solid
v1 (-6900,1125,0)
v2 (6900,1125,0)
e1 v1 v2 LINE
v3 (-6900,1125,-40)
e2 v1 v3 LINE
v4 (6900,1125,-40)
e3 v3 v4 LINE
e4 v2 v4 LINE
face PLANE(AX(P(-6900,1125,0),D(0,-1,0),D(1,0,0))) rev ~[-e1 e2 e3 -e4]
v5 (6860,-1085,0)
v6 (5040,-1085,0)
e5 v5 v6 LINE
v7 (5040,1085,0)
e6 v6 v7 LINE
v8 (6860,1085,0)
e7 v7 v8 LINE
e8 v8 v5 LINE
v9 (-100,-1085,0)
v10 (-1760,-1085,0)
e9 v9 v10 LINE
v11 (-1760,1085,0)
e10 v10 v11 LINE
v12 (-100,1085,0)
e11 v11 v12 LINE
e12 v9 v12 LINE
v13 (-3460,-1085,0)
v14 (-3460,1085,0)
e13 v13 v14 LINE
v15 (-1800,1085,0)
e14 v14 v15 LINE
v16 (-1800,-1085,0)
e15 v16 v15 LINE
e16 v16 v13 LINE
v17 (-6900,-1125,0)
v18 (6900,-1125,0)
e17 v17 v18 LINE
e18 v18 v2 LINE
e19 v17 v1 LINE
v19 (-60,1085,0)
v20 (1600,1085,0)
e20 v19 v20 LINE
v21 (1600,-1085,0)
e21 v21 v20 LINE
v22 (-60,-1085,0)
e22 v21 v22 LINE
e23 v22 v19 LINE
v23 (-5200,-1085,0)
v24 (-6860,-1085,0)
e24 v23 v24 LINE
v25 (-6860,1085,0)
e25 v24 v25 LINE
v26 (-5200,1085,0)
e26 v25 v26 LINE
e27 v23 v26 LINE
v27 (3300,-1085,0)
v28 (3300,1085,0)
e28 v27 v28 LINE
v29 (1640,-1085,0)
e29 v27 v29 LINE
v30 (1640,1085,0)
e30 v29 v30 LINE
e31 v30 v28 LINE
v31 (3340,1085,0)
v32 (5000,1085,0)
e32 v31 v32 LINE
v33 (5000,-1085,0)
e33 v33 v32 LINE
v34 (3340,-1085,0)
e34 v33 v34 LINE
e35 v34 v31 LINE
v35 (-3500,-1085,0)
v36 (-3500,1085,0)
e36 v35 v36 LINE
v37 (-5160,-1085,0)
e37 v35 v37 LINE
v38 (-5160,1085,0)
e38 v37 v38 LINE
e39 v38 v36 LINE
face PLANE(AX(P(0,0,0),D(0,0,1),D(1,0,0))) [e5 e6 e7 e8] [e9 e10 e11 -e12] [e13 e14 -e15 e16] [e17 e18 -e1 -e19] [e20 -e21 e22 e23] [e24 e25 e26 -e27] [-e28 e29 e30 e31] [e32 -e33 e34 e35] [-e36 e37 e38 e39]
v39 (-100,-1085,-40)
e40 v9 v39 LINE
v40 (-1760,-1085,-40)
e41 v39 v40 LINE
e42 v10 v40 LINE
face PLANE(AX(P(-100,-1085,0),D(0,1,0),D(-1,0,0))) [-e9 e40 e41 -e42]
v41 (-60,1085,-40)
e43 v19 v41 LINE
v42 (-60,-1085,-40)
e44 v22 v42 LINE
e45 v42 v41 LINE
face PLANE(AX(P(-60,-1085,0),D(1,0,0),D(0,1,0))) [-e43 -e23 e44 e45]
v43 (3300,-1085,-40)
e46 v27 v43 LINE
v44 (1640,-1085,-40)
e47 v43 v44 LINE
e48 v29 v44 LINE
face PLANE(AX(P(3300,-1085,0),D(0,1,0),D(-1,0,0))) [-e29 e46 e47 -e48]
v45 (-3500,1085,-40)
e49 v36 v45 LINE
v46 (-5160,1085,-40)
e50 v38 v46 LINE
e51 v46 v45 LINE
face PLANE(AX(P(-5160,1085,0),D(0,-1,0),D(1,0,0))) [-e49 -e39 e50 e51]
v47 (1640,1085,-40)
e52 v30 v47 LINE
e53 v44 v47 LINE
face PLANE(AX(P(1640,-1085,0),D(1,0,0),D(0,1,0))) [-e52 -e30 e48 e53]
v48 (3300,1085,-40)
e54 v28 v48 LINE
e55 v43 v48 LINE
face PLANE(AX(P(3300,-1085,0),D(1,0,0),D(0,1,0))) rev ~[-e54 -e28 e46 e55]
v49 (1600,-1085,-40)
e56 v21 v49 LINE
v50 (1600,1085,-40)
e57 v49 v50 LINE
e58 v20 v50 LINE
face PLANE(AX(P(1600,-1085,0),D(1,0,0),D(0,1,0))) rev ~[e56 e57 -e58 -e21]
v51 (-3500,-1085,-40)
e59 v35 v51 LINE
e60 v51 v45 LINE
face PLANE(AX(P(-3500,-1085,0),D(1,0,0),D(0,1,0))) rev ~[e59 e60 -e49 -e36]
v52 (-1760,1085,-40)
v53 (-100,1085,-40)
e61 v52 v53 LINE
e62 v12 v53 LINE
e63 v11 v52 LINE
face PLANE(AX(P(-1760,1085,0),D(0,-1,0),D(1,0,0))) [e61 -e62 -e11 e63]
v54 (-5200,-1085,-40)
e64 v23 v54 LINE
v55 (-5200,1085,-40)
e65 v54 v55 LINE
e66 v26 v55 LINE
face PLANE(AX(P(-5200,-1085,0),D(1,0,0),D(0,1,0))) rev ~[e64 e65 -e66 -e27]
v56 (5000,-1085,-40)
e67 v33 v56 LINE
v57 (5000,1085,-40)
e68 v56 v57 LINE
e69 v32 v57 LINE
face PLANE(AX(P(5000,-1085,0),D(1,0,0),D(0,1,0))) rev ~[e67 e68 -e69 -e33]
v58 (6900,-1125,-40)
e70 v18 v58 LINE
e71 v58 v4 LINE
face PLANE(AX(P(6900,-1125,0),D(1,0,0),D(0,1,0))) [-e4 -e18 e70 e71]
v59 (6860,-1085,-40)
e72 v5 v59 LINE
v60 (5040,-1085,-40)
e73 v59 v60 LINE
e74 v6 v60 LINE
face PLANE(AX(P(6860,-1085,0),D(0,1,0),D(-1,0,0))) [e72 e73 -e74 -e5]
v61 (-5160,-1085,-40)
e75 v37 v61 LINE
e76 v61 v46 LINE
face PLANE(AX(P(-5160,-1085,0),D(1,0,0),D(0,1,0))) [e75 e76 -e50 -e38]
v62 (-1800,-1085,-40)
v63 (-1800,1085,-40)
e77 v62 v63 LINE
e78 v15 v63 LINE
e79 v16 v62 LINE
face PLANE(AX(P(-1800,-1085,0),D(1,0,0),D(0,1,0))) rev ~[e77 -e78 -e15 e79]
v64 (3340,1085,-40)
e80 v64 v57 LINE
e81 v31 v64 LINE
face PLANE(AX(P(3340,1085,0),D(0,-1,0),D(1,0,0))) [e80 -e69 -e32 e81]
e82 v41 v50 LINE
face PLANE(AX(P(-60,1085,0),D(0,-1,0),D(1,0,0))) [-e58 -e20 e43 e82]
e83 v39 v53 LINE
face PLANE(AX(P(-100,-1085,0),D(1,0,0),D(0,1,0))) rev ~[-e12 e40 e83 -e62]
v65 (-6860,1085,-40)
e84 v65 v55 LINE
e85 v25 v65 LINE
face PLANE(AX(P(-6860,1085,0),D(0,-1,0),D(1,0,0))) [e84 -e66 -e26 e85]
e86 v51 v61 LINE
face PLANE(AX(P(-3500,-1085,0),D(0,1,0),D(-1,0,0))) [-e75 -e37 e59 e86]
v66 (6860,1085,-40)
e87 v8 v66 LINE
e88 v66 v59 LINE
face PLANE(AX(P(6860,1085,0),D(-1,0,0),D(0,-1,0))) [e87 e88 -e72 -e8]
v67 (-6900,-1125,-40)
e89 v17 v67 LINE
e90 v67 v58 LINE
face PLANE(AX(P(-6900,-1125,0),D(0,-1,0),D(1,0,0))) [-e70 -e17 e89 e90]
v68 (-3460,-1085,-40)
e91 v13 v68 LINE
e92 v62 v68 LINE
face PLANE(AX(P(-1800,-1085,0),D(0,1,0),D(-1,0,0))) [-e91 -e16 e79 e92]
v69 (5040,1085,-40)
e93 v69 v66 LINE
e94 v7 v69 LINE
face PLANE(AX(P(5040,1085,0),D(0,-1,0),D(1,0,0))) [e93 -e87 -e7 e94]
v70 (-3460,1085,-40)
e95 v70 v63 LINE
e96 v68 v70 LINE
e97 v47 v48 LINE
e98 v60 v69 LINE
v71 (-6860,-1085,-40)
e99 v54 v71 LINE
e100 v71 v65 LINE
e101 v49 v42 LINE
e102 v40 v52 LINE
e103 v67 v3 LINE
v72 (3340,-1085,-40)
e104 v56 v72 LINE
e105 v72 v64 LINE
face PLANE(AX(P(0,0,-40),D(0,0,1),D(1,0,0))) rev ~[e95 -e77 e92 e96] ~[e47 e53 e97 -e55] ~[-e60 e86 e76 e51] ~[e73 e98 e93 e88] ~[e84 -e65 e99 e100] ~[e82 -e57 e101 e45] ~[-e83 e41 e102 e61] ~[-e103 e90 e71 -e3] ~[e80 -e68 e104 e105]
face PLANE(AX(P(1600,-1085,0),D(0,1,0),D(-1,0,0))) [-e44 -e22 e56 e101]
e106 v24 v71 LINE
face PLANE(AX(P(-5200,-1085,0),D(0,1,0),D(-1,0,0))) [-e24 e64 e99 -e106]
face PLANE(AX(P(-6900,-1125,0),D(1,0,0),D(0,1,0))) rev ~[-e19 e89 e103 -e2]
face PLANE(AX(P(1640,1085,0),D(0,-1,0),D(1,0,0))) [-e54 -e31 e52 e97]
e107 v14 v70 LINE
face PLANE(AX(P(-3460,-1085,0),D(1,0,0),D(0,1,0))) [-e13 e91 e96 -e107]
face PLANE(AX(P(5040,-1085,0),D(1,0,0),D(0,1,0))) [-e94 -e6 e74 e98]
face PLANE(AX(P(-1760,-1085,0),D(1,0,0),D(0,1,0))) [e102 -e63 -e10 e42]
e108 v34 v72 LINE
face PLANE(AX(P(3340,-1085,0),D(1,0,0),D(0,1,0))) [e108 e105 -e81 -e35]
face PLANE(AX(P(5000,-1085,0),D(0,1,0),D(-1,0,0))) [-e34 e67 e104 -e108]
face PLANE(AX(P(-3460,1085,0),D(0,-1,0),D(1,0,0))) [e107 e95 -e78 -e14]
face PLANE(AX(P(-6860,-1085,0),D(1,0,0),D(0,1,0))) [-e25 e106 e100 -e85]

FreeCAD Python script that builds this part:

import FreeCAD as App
import Part
import Sketcher
from FreeCAD import Vector

doc = App.newDocument("Part")
body = doc.addObject("PartDesign::Body", "Body")

sketch1 = body.newObject("Sketcher::SketchObject", "Sketch")
sketch1.AttachmentSupport = (doc.getObject("XY_Plane"), [""])
sketch1.MapMode = "FlatFace"
sketch1.addGeometry([
    Part.LineSegment(Vector(-6900, 1125, 0), Vector(-6900, -1125, 0)),
    Part.LineSegment(Vector(-6900, -1125, 0), Vector(6900, -1125, 0)),
    Part.LineSegment(Vector(6900, -1125, 0), Vector(6900, 1125, 0)),
    Part.LineSegment(Vector(6900, 1125, 0), Vector(-6900, 1125, 0)),
    Part.LineSegment(Vector(-6860, 1085, 0), Vector(-5200, 1085, 0)),
    Part.LineSegment(Vector(-5200, 1085, 0), Vector(-5200, -1085, 0)),
    Part.LineSegment(Vector(-5200, -1085, 0), Vector(-6860, -1085, 0)),
    Part.LineSegment(Vector(-6860, -1085, 0), Vector(-6860, 1085, 0)),
    Part.LineSegment(Vector(-5160, 1085, 0), Vector(-3500, 1085, 0)),
    Part.LineSegment(Vector(-3500, 1085, 0), Vector(-3500, -1085, 0)),
    Part.LineSegment(Vector(-3500, -1085, 0), Vector(-5160, -1085, 0)),
    Part.LineSegment(Vector(-5160, -1085, 0), Vector(-5160, 1085, 0)),
    Part.LineSegment(Vector(-3460, 1085, 0), Vector(-1800, 1085, 0)),
    Part.LineSegment(Vector(-1800, 1085, 0), Vector(-1800, -1085, 0)),
    Part.LineSegment(Vector(-1800, -1085, 0), Vector(-3460, -1085, 0)),
    Part.LineSegment(Vector(-3460, -1085, 0), Vector(-3460, 1085, 0)),
    Part.LineSegment(Vector(-1760, 1085, 0), Vector(-100, 1085, 0)),
    Part.LineSegment(Vector(-100, 1085, 0), Vector(-100, -1085, 0)),
    Part.LineSegment(Vector(-100, -1085, 0), Vector(-1760, -1085, 0)),
    Part.LineSegment(Vector(-1760, -1085, 0), Vector(-1760, 1085, 0)),
    Part.LineSegment(Vector(-60, 1085, 0), Vector(1600, 1085, 0)),
    Part.LineSegment(Vector(1600, 1085, 0), Vector(1600, -1085, 0)),
    Part.LineSegment(Vector(1600, -1085, 0), Vector(-60, -1085, 0)),
    Part.LineSegment(Vector(-60, -1085, 0), Vector(-60, 1085, 0)),
    Part.LineSegment(Vector(1640, 1085, 0), Vector(3300, 1085, 0)),
    Part.LineSegment(Vector(3300, 1085, 0), Vector(3300, -1085, 0)),
    Part.LineSegment(Vector(3300, -1085, 0), Vector(1640, -1085, 0)),
    Part.LineSegment(Vector(1640, -1085, 0), Vector(1640, 1085, 0)),
    Part.LineSegment(Vector(3340, 1085, 0), Vector(5000, 1085, 0)),
    Part.LineSegment(Vector(5000, 1085, 0), Vector(5000, -1085, 0)),
    Part.LineSegment(Vector(5000, -1085, 0), Vector(3340, -1085, 0)),
    Part.LineSegment(Vector(3340, -1085, 0), Vector(3340, 1085, 0)),
    Part.LineSegment(Vector(5040, 1085, 0), Vector(6860, 1085, 0)),
    Part.LineSegment(Vector(6860, 1085, 0), Vector(6860, -1085, 0)),
    Part.LineSegment(Vector(6860, -1085, 0), Vector(5040, -1085, 0)),
    Part.LineSegment(Vector(5040, -1085, 0), Vector(5040, 1085, 0)),
], False)
sketch1.addConstraint([
    Sketcher.Constraint("Coincident", 0, 2, 1, 1),
    Sketcher.Constraint("Coincident", 1, 2, 2, 1),
    Sketcher.Constraint("Coincident", 2, 2, 3, 1),
    Sketcher.Constraint("Coincident", 3, 2, 0, 1),
    Sketcher.Constraint("Coincident", 4, 2, 5, 1),
    Sketcher.Constraint("Coincident", 5, 2, 6, 1),
    Sketcher.Constraint("Coincident", 6, 2, 7, 1),
    Sketcher.Constraint("Coincident", 7, 2, 4, 1),
    Sketcher.Constraint("Coincident", 8, 2, 9, 1),
    Sketcher.Constraint("Coincident", 9, 2, 10, 1),
    Sketcher.Constraint("Coincident", 10, 2, 11, 1),
    Sketcher.Constraint("Coincident", 11, 2, 8, 1),
    Sketcher.Constraint("Coincident", 12, 2, 13, 1),
    Sketcher.Constraint("Coincident", 13, 2, 14, 1),
    Sketcher.Constraint("Coincident", 14, 2, 15, 1),
    Sketcher.Constraint("Coincident", 15, 2, 12, 1),
    Sketcher.Constraint("Coincident", 16, 2, 17, 1),
    Sketcher.Constraint("Coincident", 17, 2, 18, 1),
    Sketcher.Constraint("Coincident", 18, 2, 19, 1),
    Sketcher.Constraint("Coincident", 19, 2, 16, 1),
    Sketcher.Constraint("Coincident", 20, 2, 21, 1),
    Sketcher.Constraint("Coincident", 21, 2, 22, 1),
    Sketcher.Constraint("Coincident", 22, 2, 23, 1),
    Sketcher.Constraint("Coincident", 23, 2, 20, 1),
    Sketcher.Constraint("Coincident", 24, 2, 25, 1),
    Sketcher.Constraint("Coincident", 25, 2, 26, 1),
    Sketcher.Constraint("Coincident", 26, 2, 27, 1),
    Sketcher.Constraint("Coincident", 27, 2, 24, 1),
    Sketcher.Constraint("Coincident", 28, 2, 29, 1),
    Sketcher.Constraint("Coincident", 29, 2, 30, 1),
    Sketcher.Constraint("Coincident", 30, 2, 31, 1),
    Sketcher.Constraint("Coincident", 31, 2, 28, 1),
    Sketcher.Constraint("Coincident", 32, 2, 33, 1),
    Sketcher.Constraint("Coincident", 33, 2, 34, 1),
    Sketcher.Constraint("Coincident", 34, 2, 35, 1),
    Sketcher.Constraint("Coincident", 35, 2, 32, 1),
    Sketcher.Constraint("Vertical", 0),
    Sketcher.Constraint("Horizontal", 1),
    Sketcher.Constraint("Vertical", 2),
    Sketcher.Constraint("Horizontal", 3),
    Sketcher.Constraint("Horizontal", 4),
    Sketcher.Constraint("Vertical", 5),
    Sketcher.Constraint("Horizontal", 6),
    Sketcher.Constraint("Vertical", 7),
    Sketcher.Constraint("Horizontal", 8),
    Sketcher.Constraint("Vertical", 9),
    Sketcher.Constraint("Horizontal", 10),
    Sketcher.Constraint("Vertical", 11),
    Sketcher.Constraint("Horizontal", 12),
    Sketcher.Constraint("Vertical", 13),
    Sketcher.Constraint("Horizontal", 14),
    Sketcher.Constraint("Vertical", 15),
    Sketcher.Constraint("Horizontal", 16),
    Sketcher.Constraint("Vertical", 17),
    Sketcher.Constraint("Horizontal", 18),
    Sketcher.Constraint("Vertical", 19),
    Sketcher.Constraint("Horizontal", 20),
    Sketcher.Constraint("Vertical", 21),
    Sketcher.Constraint("Horizontal", 22),
    Sketcher.Constraint("Vertical", 23),
    Sketcher.Constraint("Horizontal", 24),
    Sketcher.Constraint("Vertical", 25),
    Sketcher.Constraint("Horizontal", 26),
    Sketcher.Constraint("Vertical", 27),
    Sketcher.Constraint("Horizontal", 28),
    Sketcher.Constraint("Vertical", 29),
    Sketcher.Constraint("Horizontal", 30),
    Sketcher.Constraint("Vertical", 31),
    Sketcher.Constraint("Horizontal", 32),
    Sketcher.Constraint("Vertical", 33),
    Sketcher.Constraint("Horizontal", 34),
    Sketcher.Constraint("Vertical", 35),
    Sketcher.Constraint("Symmetric", 0, 2, 2, 2, -1, 1),
    Sketcher.Constraint("Symmetric", 6, 2, 32, 2, -1, 1),
    Sketcher.Constraint("Horizontal", 7, 2, 8, 2),
    Sketcher.Constraint("Horizontal", 6, 2, 9, 2),
    Sketcher.Constraint("Horizontal", 11, 2, 12, 2),
    Sketcher.Constraint("Horizontal", 10, 2, 13, 2),
    Sketcher.Constraint("Horizontal", 15, 2, 16, 2),
    Sketcher.Constraint("Horizontal", 14, 2, 17, 2),
    Sketcher.Constraint("Horizontal", 19, 2, 20, 2),
    Sketcher.Constraint("Horizontal", 18, 2, 21, 2),
    Sketcher.Constraint("Horizontal", 23, 2, 24, 2),
    Sketcher.Constraint("Horizontal", 22, 2, 25, 2),
    Sketcher.Constraint("Horizontal", 27, 2, 28, 2),
    Sketcher.Constraint("Horizontal", 26, 2, 29, 2),
    Sketcher.Constraint("Horizontal", 31, 2, 32, 2),
    Sketcher.Constraint("Horizontal", 30, 2, 33, 2),
    Sketcher.Constraint("Equal", 6, 8),
    Sketcher.Constraint("Equal", 10, 12),
    Sketcher.Constraint("Equal", 14, 16),
    Sketcher.Constraint("Equal", 18, 20),
    Sketcher.Constraint("Equal", 22, 24),
    Sketcher.Constraint("Equal", 26, 28),
    Sketcher.Constraint("DistanceX", 1, 1, 1, 2, 13800.0),
    Sketcher.Constraint("DistanceX", 4, 1, 4, 2, 1660.0),
    Sketcher.Constraint("DistanceX", 32, 1, 32, 2, 1820.0),
    Sketcher.Constraint("DistanceY", 0, 2, 0, 1, 2250.0),
    Sketcher.Constraint("DistanceY", 5, 2, 5, 1, 2170.0),
    Sketcher.Constraint("DistanceX", 4, 2, -1, 1, 5200.0),
    Sketcher.Constraint("DistanceX", 8, 2, -1, 1, 3500.0),
    Sketcher.Constraint("DistanceX", 12, 2, -1, 1, 1800.0),
    Sketcher.Constraint("DistanceX", 16, 2, -1, 1, 100.0),
    Sketcher.Constraint("DistanceX", -1, 1, 20, 2, 1600.0),
    Sketcher.Constraint("DistanceX", -1, 1, 24, 2, 3300.0),
    Sketcher.Constraint("DistanceX", -1, 1, 28, 2, 5000.0),
])
pad1 = body.newObject("PartDesign::Pad", "Pad")
pad1.Profile = sketch1
pad1.Length = 40
pad1.Reversed = True

doc.recompute()
